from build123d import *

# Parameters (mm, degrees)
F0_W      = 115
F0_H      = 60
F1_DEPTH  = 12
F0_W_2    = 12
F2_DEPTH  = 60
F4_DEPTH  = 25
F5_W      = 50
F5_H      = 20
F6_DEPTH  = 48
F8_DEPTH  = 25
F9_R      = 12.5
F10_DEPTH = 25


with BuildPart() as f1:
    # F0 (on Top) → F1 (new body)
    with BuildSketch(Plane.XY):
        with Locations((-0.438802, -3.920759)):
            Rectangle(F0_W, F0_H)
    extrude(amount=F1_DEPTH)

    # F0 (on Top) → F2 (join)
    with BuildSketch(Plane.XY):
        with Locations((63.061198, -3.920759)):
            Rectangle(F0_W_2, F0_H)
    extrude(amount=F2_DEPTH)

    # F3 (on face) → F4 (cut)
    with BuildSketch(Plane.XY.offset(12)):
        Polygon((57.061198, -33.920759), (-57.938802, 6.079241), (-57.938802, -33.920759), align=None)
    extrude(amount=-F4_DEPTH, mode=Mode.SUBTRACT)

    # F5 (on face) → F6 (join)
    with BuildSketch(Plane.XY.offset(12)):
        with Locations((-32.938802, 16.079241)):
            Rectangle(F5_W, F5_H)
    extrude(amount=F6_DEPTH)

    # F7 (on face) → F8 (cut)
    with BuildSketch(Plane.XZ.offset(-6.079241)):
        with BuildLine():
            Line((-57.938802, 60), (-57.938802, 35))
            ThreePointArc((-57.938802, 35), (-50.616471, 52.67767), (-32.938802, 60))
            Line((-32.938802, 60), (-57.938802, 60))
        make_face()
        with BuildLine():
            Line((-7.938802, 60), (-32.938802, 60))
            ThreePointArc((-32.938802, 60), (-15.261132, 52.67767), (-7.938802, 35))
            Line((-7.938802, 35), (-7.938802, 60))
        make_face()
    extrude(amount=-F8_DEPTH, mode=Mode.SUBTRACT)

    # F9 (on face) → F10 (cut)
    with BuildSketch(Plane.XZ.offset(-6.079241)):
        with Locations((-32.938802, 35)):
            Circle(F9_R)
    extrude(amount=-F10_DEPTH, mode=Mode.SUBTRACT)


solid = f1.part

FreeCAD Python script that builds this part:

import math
import FreeCAD as App
import Part
import Sketcher

doc = App.newDocument("Part")
params = doc.addObject("Spreadsheet::Sheet", "Params")
for row, (alias, value) in enumerate([
    ("sketch1_width", "115 mm"),
    ("sketch1_height", "60 mm"),
    ("pad1_length", "12 mm"),
    ("sketch2_width", "12 mm"),
    ("sketch2_height", "60 mm"),
    ("pad2_length", "60 mm"),
    ("sketch3_width", "115 mm"),
    ("sketch3_height", "40 mm"),
    ("pocket1_length", "25 mm"),
    ("sketch4_width", "50 mm"),
    ("sketch4_height", "20 mm"),
    ("pad3_length", "48 mm"),
    ("sketch5_radius", "25 mm"),
    ("pocket2_length", "25 mm"),
    ("sketch6_diameter", "25 mm"),
    ("pocket3_length", "25 mm"),
], start=1):
    params.set(f"A{row}", alias)
    params.set(f"B{row}", "=" + value)
    params.setAlias(f"B{row}", alias)

body = doc.addObject("PartDesign::Body", "Body")

# Sketch on XY plane
sketch1 = body.newObject("Sketcher::SketchObject", "Sketch")
sketch1.AttachmentSupport = (doc.getObject("XY_Plane"), [""])
sketch1.MapMode = "FlatFace"
sketch1.addGeometry([
    Part.LineSegment(App.Vector(-58, 26, 0), App.Vector(-58, -34, 0)),
    Part.LineSegment(App.Vector(-58, -34, 0), App.Vector(57, -34, 0)),
    Part.LineSegment(App.Vector(57, -34, 0), App.Vector(57, 26, 0)),
    Part.LineSegment(App.Vector(57, 26, 0), App.Vector(-58, 26, 0)),
], False)
sketch1.addConstraint([
    Sketcher.Constraint("Coincident", 0, 2, 1, 1),
    Sketcher.Constraint("Coincident", 1, 2, 2, 1),
    Sketcher.Constraint("Coincident", 2, 2, 3, 1),
    Sketcher.Constraint("Coincident", 3, 2, 0, 1),
    Sketcher.Constraint("Vertical", 0),
    Sketcher.Constraint("Horizontal", 1),
    Sketcher.Constraint("Vertical", 2),
    Sketcher.Constraint("Horizontal", 3),
    Sketcher.Constraint("DistanceX", 1, 1, 1, 2, 115.0),
    Sketcher.Constraint("DistanceY", 0, 2, 0, 1, 60.0),
    Sketcher.Constraint("DistanceY", 0, 2, -1, 1, 33.920759),
    Sketcher.Constraint("DistanceX", 0, 2, -1, 1, 57.938802),
])
sketch1.setExpression("Constraints[8]", "Params.sketch1_width")
sketch1.setExpression("Constraints[9]", "Params.sketch1_height")
pad1 = body.newObject("PartDesign::Pad", "Pad")
pad1.Profile = sketch1
pad1.setExpression("Length", "Params.pad1_length")

# Sketch on XY plane
sketch2 = body.newObject("Sketcher::SketchObject", "Sketch001")
sketch2.AttachmentSupport = (doc.getObject("XY_Plane"), [""])
sketch2.MapMode = "FlatFace"
sketch2.addGeometry([
    Part.LineSegment(App.Vector(57, 26, 0), App.Vector(57, -34, 0)),
    Part.LineSegment(App.Vector(57, -34, 0), App.Vector(69, -34, 0)),
    Part.LineSegment(App.Vector(69, -34, 0), App.Vector(69, 26, 0)),
    Part.LineSegment(App.Vector(69, 26, 0), App.Vector(57, 26, 0)),
], False)
sketch2.addConstraint([
    Sketcher.Constraint("Coincident", 0, 2, 1, 1),
    Sketcher.Constraint("Coincident", 1, 2, 2, 1),
    Sketcher.Constraint("Coincident", 2, 2, 3, 1),
    Sketcher.Constraint("Coincident", 3, 2, 0, 1),
    Sketcher.Constraint("Vertical", 0),
    Sketcher.Constraint("Horizontal", 1),
    Sketcher.Constraint("Vertical", 2),
    Sketcher.Constraint("Horizontal", 3),
    Sketcher.Constraint("DistanceX", 1, 1, 1, 2, 12.0),
    Sketcher.Constraint("DistanceY", 0, 2, 0, 1, 60.0),
    Sketcher.Constraint("DistanceX", -1, 1, 1, 2, 69.061198),
    Sketcher.Constraint("DistanceY", 0, 2, -1, 1, 33.920759),
])
sketch2.setExpression("Constraints[8]", "Params.sketch2_width")
sketch2.setExpression("Constraints[9]", "Params.sketch2_height")
pad2 = body.newObject("PartDesign::Pad", "Pad001")
pad2.Profile = sketch2
pad2.setExpression("Length", "Params.pad2_length")

# Sketch on XY plane
sketch3 = body.newObject("Sketcher::SketchObject", "Sketch002")
sketch3.AttachmentSupport = (doc.getObject("XY_Plane"), [""])
sketch3.MapMode = "FlatFace"
sketch3.AttachmentOffset = App.Placement(App.Vector(0, 0, 12), App.Rotation())
sketch3.addGeometry([
    Part.LineSegment(App.Vector(57, -34, 0), App.Vector(-58, 6, 0)),
    Part.LineSegment(App.Vector(-58, 6, 0), App.Vector(-58, -34, 0)),
    Part.LineSegment(App.Vector(-58, -34, 0), App.Vector(57, -34, 0)),
], False)
sketch3.addConstraint([
    Sketcher.Constraint("Coincident", 0, 2, 1, 1),
    Sketcher.Constraint("Coincident", 1, 2, 2, 1),
    Sketcher.Constraint("Coincident", 2, 2, 0, 1),
    Sketcher.Constraint("Vertical", 1),
    Sketcher.Constraint("Horizontal", 2),
    Sketcher.Constraint("DistanceX", 2, 1, 2, 2, 115.0),
    Sketcher.Constraint("DistanceY", 1, 2, 1, 1, 40.0),
    Sketcher.Constraint("DistanceY", -1, 1, 0, 2, 6.079241),
    Sketcher.Constraint("DistanceX", 0, 2, -1, 1, 57.938802),
])
sketch3.setExpression("Constraints[5]", "Params.sketch3_width")
sketch3.setExpression("Constraints[6]", "Params.sketch3_height")
pocket1 = body.newObject("PartDesign::Pocket", "Pocket")
pocket1.Profile = sketch3
pocket1.setExpression("Length", "Params.pocket1_length")

# Sketch on XY plane
sketch4 = body.newObject("Sketcher::SketchObject", "Sketch003")
sketch4.AttachmentSupport = (doc.getObject("XY_Plane"), [""])
sketch4.MapMode = "FlatFace"
sketch4.AttachmentOffset = App.Placement(App.Vector(0, 0, 12), App.Rotation())
sketch4.addGeometry([
    Part.LineSegment(App.Vector(-58, 26, 0), App.Vector(-58, 6, 0)),
    Part.LineSegment(App.Vector(-58, 6, 0), App.Vector(-8, 6, 0)),
    Part.LineSegment(App.Vector(-8, 6, 0), App.Vector(-8, 26, 0)),
    Part.LineSegment(App.Vector(-8, 26, 0), App.Vector(-58, 26, 0)),
], False)
sketch4.addConstraint([
    Sketcher.Constraint("Coincident", 0, 2, 1, 1),
    Sketcher.Constraint("Coincident", 1, 2, 2, 1),
    Sketcher.Constraint("Coincident", 2, 2, 3, 1),
    Sketcher.Constraint("Coincident", 3, 2, 0, 1),
    Sketcher.Constraint("Vertical", 0),
    Sketcher.Constraint("Horizontal", 1),
    Sketcher.Constraint("Vertical", 2),
    Sketcher.Constraint("Horizontal", 3),
    Sketcher.Constraint("DistanceX", 1, 1, 1, 2, 50.0),
    Sketcher.Constraint("DistanceY", 0, 2, 0, 1, 20.0),
    Sketcher.Constraint("DistanceY", -1, 1, 0, 2, 6.079241),
    Sketcher.Constraint("DistanceX", 0, 2, -1, 1, 57.938802),
])
sketch4.setExpression("Constraints[8]", "Params.sketch4_width")
sketch4.setExpression("Constraints[9]", "Params.sketch4_height")
pad3 = body.newObject("PartDesign::Pad", "Pad002")
pad3.Profile = sketch4
pad3.setExpression("Length", "Params.pad3_length")

# Sketch on XZ plane
sketch5 = body.newObject("Sketcher::SketchObject", "Sketch004")
sketch5.AttachmentSupport = (doc.getObject("XZ_Plane"), [""])
sketch5.MapMode = "FlatFace"
sketch5.AttachmentOffset = App.Placement(App.Vector(0, 0, -6.079241), App.Rotation())
sketch5.addGeometry([
    Part.LineSegment(App.Vector(-58, 60, 0), App.Vector(-58, 35, 0)),  # 0
    Part.ArcOfCircle(Part.Circle(App.Vector(-33, 35, 0), App.Vector(0, 0, 1), 25), math.radians(90), math.radians(180)),  # 1
    Part.LineSegment(App.Vector(-33, 60, 0), App.Vector(-58, 60, 0)),  # 2
    Part.LineSegment(App.Vector(-8, 60, 0), App.Vector(-33, 60, 0)),  # 3
    Part.ArcOfCircle(Part.Circle(App.Vector(-33, 35, 0), App.Vector(0, 0, 1), 25), math.radians(0), math.radians(90)),  # 4
    Part.LineSegment(App.Vector(-8, 35, 0), App.Vector(-8, 60, 0)),  # 5
], False)
sketch5.addConstraint([
    Sketcher.Constraint("Tangent", 0, 2, 1, 2),
    Sketcher.Constraint("Tangent", 1, 1, 2, 1),
    Sketcher.Constraint("Coincident", 2, 2, 0, 1),
    Sketcher.Constraint("Tangent", 3, 2, 4, 2),
    Sketcher.Constraint("Tangent", 4, 1, 5, 1),
    Sketcher.Constraint("Coincident", 5, 2, 3, 1),
    Sketcher.Constraint("Vertical", 0),
    Sketcher.Constraint("Horizontal", 2),
    Sketcher.Constraint("Horizontal", 3),
    Sketcher.Constraint("Vertical", 5),
    Sketcher.Constraint("Coincident", 4, 3, 1, 3),
    Sketcher.Constraint("Equal", 1, 4),
    Sketcher.Constraint("Radius", 1, 25.0),
    Sketcher.Constraint("DistanceY", -1, 1, 1, 3, 35.0),
    Sketcher.Constraint("DistanceX", 1, 3, -1, 1, 32.938802),
])
sketch5.setExpression("Constraints[12]", "Params.sketch5_radius")
pocket2 = body.newObject("PartDesign::Pocket", "Pocket001")
pocket2.Profile = sketch5
pocket2.setExpression("Length", "Params.pocket2_length")

# Sketch on XZ plane
sketch6 = body.newObject("Sketcher::SketchObject", "Sketch005")
sketch6.AttachmentSupport = (doc.getObject("XZ_Plane"), [""])
sketch6.MapMode = "FlatFace"
sketch6.AttachmentOffset = App.Placement(App.Vector(0, 0, -6.079241), App.Rotation())
sketch6.addGeometry(Part.Circle(App.Vector(-33, 35, 0), App.Vector(0, 0, 1), 12), False)
sketch6.addConstraint([
    Sketcher.Constraint("Diameter", 0, 25.0),
    Sketcher.Constraint("DistanceY", -1, 1, 0, 3, 35.0),
    Sketcher.Constraint("DistanceX", 0, 3, -1, 1, 32.938802),
])
sketch6.setExpression("Constraints[0]", "Params.sketch6_diameter")
pocket3 = body.newObject("PartDesign::Pocket", "Pocket002")
pocket3.Profile = sketch6
pocket3.setExpression("Length", "Params.pocket3_length")

doc.recompute()
